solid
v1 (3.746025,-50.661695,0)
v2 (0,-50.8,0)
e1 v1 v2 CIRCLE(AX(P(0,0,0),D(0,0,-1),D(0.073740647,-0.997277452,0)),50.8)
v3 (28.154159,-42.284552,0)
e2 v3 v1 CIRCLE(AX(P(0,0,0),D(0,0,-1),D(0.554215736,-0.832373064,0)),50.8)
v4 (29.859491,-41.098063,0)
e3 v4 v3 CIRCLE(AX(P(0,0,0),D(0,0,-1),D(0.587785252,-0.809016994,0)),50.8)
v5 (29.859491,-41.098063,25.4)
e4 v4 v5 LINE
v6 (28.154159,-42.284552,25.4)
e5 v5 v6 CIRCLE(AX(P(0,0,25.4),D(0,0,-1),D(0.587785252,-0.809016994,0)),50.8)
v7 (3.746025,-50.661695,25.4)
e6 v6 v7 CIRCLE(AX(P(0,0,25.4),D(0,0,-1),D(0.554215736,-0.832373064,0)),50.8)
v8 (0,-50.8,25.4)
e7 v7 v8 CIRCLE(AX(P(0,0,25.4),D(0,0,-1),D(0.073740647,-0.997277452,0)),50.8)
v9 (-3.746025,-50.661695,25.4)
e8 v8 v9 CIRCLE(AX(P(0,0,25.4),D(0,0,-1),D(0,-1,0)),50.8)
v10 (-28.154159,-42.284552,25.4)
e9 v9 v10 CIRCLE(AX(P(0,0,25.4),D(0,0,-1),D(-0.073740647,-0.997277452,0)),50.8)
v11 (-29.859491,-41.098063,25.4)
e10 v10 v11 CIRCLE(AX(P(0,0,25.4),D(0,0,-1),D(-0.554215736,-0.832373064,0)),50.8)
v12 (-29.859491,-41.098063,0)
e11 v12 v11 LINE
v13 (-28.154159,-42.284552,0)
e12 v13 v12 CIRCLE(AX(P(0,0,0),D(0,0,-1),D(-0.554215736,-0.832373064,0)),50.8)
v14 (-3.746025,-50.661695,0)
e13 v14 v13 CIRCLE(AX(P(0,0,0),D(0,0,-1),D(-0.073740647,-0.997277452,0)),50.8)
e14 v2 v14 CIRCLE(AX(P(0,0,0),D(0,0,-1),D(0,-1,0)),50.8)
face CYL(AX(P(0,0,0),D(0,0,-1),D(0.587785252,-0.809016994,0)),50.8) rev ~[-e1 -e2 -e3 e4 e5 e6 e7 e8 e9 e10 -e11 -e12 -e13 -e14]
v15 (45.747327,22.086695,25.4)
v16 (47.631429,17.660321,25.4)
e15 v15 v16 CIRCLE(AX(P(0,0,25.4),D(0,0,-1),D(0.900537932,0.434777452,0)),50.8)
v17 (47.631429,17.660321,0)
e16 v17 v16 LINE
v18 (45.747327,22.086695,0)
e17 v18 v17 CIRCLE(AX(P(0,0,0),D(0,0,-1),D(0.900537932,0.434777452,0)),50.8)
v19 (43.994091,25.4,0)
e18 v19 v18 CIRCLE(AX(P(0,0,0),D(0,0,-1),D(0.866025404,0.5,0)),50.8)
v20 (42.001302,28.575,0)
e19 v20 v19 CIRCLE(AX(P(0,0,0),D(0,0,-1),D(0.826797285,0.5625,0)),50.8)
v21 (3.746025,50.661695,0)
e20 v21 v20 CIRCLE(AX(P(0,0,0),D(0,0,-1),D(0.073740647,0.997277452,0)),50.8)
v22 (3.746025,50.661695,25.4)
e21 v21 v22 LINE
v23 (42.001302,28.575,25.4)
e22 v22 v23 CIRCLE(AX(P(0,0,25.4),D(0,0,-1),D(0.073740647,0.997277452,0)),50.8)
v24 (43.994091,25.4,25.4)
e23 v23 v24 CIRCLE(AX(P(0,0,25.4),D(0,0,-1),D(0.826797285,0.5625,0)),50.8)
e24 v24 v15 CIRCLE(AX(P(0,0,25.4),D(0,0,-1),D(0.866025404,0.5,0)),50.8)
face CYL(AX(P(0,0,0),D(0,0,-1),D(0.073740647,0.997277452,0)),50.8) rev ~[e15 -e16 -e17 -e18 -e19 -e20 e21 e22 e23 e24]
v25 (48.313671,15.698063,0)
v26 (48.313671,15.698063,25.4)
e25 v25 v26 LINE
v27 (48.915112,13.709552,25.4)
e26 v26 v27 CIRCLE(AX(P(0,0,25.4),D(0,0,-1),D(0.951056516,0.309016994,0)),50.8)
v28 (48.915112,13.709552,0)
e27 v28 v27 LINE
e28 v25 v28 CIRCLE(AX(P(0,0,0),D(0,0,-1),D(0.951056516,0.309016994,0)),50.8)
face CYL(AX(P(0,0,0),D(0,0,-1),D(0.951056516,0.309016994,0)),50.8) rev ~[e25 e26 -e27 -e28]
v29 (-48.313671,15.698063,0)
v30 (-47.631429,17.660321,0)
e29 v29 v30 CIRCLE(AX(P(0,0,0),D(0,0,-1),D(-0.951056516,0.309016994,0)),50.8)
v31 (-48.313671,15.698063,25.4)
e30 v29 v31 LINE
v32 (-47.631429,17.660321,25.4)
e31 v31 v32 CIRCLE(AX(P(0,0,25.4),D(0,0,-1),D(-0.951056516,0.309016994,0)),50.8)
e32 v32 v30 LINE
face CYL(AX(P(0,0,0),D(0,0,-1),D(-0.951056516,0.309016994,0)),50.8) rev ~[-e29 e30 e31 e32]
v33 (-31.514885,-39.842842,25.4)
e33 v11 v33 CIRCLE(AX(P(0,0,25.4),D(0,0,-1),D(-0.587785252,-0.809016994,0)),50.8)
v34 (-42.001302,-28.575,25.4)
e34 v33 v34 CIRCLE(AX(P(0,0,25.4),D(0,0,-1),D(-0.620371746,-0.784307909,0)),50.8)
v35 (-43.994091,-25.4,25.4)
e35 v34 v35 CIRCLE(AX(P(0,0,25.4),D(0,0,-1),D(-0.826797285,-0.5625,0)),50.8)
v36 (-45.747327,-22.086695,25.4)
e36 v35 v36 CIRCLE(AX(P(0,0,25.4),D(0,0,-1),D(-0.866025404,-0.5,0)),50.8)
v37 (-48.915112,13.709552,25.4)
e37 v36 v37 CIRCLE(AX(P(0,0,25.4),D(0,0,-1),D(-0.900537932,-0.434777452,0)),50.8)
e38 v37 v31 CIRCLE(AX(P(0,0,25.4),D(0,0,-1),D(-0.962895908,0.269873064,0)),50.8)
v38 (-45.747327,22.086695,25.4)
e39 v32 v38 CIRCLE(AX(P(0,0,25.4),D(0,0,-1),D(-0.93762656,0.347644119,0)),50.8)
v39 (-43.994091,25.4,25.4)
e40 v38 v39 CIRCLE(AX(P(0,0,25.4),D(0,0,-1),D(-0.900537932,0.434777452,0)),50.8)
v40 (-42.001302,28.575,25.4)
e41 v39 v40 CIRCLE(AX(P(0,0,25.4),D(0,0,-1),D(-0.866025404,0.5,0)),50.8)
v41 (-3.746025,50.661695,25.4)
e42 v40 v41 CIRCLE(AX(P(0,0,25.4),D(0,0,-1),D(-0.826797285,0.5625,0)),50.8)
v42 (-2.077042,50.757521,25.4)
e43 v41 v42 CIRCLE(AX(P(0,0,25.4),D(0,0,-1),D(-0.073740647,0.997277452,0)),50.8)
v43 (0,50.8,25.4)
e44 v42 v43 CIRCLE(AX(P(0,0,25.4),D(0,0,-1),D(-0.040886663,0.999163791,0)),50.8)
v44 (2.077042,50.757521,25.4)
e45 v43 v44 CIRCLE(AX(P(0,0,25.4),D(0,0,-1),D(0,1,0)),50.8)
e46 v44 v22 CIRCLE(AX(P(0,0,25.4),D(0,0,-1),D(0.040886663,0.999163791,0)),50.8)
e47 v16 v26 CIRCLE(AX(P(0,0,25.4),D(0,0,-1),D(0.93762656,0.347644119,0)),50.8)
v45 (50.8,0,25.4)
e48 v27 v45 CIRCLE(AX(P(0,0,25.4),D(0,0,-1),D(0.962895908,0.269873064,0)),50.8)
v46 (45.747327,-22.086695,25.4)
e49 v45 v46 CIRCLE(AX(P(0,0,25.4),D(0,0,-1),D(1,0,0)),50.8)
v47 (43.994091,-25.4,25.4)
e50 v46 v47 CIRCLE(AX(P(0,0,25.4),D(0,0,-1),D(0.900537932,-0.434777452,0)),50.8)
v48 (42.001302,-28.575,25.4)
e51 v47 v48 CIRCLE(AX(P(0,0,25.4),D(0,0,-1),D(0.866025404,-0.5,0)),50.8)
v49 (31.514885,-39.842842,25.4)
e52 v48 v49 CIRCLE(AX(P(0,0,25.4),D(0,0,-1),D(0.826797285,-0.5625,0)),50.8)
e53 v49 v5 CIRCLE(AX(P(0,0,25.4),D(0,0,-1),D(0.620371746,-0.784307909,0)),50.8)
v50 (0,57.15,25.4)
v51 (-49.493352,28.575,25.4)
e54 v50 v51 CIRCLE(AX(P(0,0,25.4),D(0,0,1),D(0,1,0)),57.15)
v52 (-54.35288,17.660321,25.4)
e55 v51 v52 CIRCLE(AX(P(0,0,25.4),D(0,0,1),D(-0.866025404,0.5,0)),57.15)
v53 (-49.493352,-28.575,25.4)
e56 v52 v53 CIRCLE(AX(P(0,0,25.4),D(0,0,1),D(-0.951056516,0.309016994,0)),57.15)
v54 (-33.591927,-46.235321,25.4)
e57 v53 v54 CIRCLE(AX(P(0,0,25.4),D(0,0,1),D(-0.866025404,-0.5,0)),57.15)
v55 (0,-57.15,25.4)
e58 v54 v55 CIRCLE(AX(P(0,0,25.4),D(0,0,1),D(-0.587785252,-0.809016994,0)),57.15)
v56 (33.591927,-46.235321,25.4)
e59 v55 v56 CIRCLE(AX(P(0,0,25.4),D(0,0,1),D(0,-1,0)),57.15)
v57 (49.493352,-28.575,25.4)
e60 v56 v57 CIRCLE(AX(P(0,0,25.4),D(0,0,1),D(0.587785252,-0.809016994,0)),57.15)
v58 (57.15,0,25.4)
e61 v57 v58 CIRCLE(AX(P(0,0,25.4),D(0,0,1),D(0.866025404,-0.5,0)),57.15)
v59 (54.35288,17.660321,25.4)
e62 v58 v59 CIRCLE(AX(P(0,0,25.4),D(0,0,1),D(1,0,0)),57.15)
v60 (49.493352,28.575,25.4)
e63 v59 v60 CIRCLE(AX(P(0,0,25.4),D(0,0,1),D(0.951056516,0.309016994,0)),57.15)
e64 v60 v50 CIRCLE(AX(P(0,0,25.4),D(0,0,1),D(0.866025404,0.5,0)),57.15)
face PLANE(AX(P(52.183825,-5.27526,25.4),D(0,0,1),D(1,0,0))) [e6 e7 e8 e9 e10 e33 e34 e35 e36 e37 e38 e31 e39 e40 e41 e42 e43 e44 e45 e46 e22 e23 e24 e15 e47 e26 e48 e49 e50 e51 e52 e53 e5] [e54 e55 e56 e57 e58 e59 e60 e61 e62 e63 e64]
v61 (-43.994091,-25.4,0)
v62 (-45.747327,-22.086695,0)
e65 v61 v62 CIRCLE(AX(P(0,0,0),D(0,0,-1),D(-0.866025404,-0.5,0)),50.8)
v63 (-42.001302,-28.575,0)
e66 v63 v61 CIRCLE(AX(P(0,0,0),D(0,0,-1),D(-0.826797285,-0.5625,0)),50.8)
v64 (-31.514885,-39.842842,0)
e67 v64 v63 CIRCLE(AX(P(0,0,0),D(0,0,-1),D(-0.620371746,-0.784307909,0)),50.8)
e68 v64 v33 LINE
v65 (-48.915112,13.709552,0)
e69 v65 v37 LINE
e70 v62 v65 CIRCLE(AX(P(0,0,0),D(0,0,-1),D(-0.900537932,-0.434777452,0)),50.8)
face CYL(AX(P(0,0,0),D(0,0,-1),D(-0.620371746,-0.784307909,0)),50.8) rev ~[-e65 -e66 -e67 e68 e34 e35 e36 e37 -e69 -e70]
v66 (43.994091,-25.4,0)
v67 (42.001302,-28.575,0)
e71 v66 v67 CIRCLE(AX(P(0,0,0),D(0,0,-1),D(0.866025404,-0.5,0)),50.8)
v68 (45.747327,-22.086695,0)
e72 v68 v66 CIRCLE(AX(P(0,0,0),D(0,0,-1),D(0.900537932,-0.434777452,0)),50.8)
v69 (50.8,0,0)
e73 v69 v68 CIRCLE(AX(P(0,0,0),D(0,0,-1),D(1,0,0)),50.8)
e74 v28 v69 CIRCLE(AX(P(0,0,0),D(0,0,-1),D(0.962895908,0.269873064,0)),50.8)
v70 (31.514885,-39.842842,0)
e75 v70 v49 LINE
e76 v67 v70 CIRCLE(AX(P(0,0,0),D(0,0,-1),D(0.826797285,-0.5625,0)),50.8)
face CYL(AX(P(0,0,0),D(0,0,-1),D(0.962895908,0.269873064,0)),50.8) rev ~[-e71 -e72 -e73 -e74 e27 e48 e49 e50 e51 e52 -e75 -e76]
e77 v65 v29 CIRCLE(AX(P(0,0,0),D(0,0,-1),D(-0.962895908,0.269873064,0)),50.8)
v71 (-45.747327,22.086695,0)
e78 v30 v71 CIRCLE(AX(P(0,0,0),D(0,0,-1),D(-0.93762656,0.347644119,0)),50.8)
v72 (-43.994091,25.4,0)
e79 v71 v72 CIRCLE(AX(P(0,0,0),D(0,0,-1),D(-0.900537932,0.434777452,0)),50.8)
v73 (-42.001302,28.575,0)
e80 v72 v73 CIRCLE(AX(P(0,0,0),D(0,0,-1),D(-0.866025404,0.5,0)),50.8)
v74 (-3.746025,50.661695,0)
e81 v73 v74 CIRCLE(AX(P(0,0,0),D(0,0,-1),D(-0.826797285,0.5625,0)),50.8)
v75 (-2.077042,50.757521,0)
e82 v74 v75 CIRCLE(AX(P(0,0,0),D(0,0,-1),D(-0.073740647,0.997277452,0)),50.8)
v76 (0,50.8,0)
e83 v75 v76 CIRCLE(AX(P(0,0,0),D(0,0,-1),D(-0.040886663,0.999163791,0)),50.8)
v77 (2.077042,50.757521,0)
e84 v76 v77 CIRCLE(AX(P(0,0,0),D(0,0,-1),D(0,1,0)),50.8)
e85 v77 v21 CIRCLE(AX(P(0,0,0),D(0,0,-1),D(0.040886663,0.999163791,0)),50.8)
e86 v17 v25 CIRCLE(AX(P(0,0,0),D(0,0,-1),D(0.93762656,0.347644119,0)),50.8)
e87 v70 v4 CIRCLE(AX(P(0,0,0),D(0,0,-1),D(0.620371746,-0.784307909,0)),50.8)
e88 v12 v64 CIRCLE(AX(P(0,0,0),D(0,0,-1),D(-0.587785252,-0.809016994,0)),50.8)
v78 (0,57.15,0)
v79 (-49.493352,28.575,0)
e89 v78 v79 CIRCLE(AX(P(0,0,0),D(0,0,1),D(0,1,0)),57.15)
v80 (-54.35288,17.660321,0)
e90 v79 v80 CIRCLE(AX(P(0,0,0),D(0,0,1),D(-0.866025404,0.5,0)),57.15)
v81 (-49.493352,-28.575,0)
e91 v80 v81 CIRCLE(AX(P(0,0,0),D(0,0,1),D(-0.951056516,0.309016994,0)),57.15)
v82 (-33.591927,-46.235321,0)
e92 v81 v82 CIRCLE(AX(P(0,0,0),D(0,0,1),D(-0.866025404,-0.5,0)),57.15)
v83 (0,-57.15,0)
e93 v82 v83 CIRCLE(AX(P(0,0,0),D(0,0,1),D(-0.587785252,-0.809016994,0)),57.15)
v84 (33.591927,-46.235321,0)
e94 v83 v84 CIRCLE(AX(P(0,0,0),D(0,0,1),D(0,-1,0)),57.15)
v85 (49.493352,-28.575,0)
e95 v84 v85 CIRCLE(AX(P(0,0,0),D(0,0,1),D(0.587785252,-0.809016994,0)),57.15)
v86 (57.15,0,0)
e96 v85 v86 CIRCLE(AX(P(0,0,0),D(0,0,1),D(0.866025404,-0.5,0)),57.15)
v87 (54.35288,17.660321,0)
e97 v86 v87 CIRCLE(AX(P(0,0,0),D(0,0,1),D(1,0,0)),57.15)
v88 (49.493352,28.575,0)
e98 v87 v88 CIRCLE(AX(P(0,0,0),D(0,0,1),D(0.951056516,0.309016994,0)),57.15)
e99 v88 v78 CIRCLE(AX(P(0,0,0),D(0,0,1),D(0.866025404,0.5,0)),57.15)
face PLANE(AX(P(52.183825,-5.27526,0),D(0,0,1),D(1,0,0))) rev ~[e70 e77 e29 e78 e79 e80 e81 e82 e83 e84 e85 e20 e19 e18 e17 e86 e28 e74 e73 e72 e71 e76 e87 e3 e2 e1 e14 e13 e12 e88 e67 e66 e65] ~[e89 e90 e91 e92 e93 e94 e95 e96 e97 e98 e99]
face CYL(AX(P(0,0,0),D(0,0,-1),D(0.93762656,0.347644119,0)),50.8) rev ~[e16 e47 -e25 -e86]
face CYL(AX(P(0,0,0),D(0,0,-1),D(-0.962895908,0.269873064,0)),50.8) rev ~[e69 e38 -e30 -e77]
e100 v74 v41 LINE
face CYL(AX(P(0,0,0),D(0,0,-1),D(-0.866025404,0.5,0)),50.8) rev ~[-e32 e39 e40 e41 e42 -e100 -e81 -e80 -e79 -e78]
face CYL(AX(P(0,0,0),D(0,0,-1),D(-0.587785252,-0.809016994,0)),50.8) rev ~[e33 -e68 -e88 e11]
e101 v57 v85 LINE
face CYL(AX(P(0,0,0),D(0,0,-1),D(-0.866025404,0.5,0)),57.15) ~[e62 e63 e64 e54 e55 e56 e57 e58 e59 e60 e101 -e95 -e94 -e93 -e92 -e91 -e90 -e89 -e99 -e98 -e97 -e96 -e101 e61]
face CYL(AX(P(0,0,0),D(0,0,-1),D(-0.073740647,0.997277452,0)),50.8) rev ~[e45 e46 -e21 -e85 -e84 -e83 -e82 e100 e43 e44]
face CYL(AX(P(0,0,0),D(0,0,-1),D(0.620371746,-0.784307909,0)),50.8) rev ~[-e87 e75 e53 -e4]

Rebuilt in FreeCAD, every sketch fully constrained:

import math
import FreeCAD as App
import Part
import Sketcher
from FreeCAD import Vector
Q = App.Units.Quantity

doc = App.newDocument("Part")
params = doc.addObject("Spreadsheet::Sheet", "Params")
for row, (alias, value) in enumerate([
    ("sketch1_radius", "2 in"),
    ("sketch1_radius2", "2.25 in"),
    ("pad1_length", "0.1 in"),
    ("sketch2_radius", "2 in"),
    ("sketch2_radius2", "2.25 in"),
    ("pad2_length", "1 in"),
], start=1):
    params.set(f"A{row}", alias)
    params.set(f"B{row}", "=" + value)
    params.setAlias(f"B{row}", alias)

body = doc.addObject("PartDesign::Body", "Body")

# Sketch on XY plane
sketch1 = body.newObject("Sketcher::SketchObject", "Sketch")
sketch1.AttachmentSupport = (doc.getObject("XY_Plane"), [""])
sketch1.MapMode = "FlatFace"
sketch1.addGeometry([
    Part.ArcOfCircle(Part.Circle(Vector(0, 0, 0), Vector(0, 0, 1), 57.15), math.radians(150), math.radians(162)),  # 0
    Part.ArcOfCircle(Part.Circle(Vector(0, 0, 0), Vector(0, 0, 1), 57.15), math.radians(162), math.radians(210)),  # 1
    Part.ArcOfCircle(Part.Circle(Vector(0, 0, 0), Vector(0, 0, 1), 57.15), math.radians(-150), math.radians(-126)),  # 2
    Part.ArcOfCircle(Part.Circle(Vector(0, 0, 0), Vector(0, 0, 1), 57.15), math.radians(-126), math.radians(-90)),  # 3
    Part.ArcOfCircle(Part.Circle(Vector(0, 0, 0), Vector(0, 0, 1), 57.15), math.radians(-90), math.radians(-54)),  # 4
    Part.ArcOfCircle(Part.Circle(Vector(0, 0, 0), Vector(0, 0, 1), 57.15), math.radians(-54), math.radians(-30)),  # 5
    Part.ArcOfCircle(Part.Circle(Vector(0, 0, 0), Vector(0, 0, 1), 57.15), math.radians(-30), math.radians(0)),  # 6
    Part.ArcOfCircle(Part.Circle(Vector(0, 0, 0), Vector(0, 0, 1), 57.15), math.radians(0), math.radians(18)),  # 7
    Part.ArcOfCircle(Part.Circle(Vector(0, 0, 0), Vector(0, 0, 1), 57.15), math.radians(18), math.radians(30)),  # 8
    Part.ArcOfCircle(Part.Circle(Vector(0, 0, 0), Vector(0, 0, 1), 57.15), math.radians(30), math.radians(90)),  # 9
    Part.ArcOfCircle(Part.Circle(Vector(0, 0, 0), Vector(0, 0, 1), 57.15), math.radians(90), math.radians(150)),  # 10
    Part.ArcOfCircle(Part.Circle(Vector(0, 0, 0), Vector(0, 0, 1), 50.8), math.radians(145.771134), math.radians(150)),  # 11
    Part.ArcOfCircle(Part.Circle(Vector(0, 0, 0), Vector(0, 0, 1), 50.8), math.radians(94.228866), math.radians(145.771134)),  # 12
    Part.ArcOfCircle(Part.Circle(Vector(0, 0, 0), Vector(0, 0, 1), 50.8), math.radians(92.343286), math.radians(94.228866)),  # 13
    Part.ArcOfCircle(Part.Circle(Vector(0, 0, 0), Vector(0, 0, 1), 50.8), math.radians(90), math.radians(92.343286)),  # 14
    Part.ArcOfCircle(Part.Circle(Vector(0, 0, 0), Vector(0, 0, 1), 50.8), math.radians(87.656714), math.radians(90)),  # 15
    Part.ArcOfCircle(Part.Circle(Vector(0, 0, 0), Vector(0, 0, 1), 50.8), math.radians(85.771134), math.radians(87.656714)),  # 16
    Part.ArcOfCircle(Part.Circle(Vector(0, 0, 0), Vector(0, 0, 1), 50.8), math.radians(34.228866), math.radians(85.771134)),  # 17
    Part.ArcOfCircle(Part.Circle(Vector(0, 0, 0), Vector(0, 0, 1), 50.8), math.radians(30), math.radians(34.228866)),  # 18
    Part.ArcOfCircle(Part.Circle(Vector(0, 0, 0), Vector(0, 0, 1), 50.8), math.radians(25.771134), math.radians(30)),  # 19
    Part.ArcOfCircle(Part.Circle(Vector(0, 0, 0), Vector(0, 0, 1), 50.8), math.radians(20.343286), math.radians(25.771134)),  # 20
    Part.ArcOfCircle(Part.Circle(Vector(0, 0, 0), Vector(0, 0, 1), 50.8), math.radians(18), math.radians(20.343286)),  # 21
    Part.ArcOfCircle(Part.Circle(Vector(0, 0, 0), Vector(0, 0, 1), 50.8), math.radians(15.656714), math.radians(18)),  # 22
    Part.ArcOfCircle(Part.Circle(Vector(0, 0, 0), Vector(0, 0, 1), 50.8), math.radians(0), math.radians(15.656714)),  # 23
    Part.ArcOfCircle(Part.Circle(Vector(0, 0, 0), Vector(0, 0, 1), 50.8), math.radians(-25.771134), math.radians(0)),  # 24
    Part.ArcOfCircle(Part.Circle(Vector(0, 0, 0), Vector(0, 0, 1), 50.8), math.radians(-30), math.radians(-25.771134)),  # 25
    Part.ArcOfCircle(Part.Circle(Vector(0, 0, 0), Vector(0, 0, 1), 50.8), math.radians(-34.228866), math.radians(-30)),  # 26
    Part.ArcOfCircle(Part.Circle(Vector(0, 0, 0), Vector(0, 0, 1), 50.8), math.radians(-51.656714), math.radians(-34.228866)),  # 27
    Part.ArcOfCircle(Part.Circle(Vector(0, 0, 0), Vector(0, 0, 1), 50.8), math.radians(-54), math.radians(-51.656714)),  # 28
    Part.ArcOfCircle(Part.Circle(Vector(0, 0, 0), Vector(0, 0, 1), 50.8), math.radians(-56.343286), math.radians(-54)),  # 29
    Part.ArcOfCircle(Part.Circle(Vector(0, 0, 0), Vector(0, 0, 1), 50.8), math.radians(-85.771134), math.radians(-56.343286)),  # 30
    Part.ArcOfCircle(Part.Circle(Vector(0, 0, 0), Vector(0, 0, 1), 50.8), math.radians(-90), math.radians(-85.771134)),  # 31
    Part.ArcOfCircle(Part.Circle(Vector(0, 0, 0), Vector(0, 0, 1), 50.8), math.radians(-94.228866), math.radians(-90)),  # 32
    Part.ArcOfCircle(Part.Circle(Vector(0, 0, 0), Vector(0, 0, 1), 50.8), math.radians(-123.656714), math.radians(-94.228866)),  # 33
    Part.ArcOfCircle(Part.Circle(Vector(0, 0, 0), Vector(0, 0, 1), 50.8), math.radians(-126), math.radians(-123.656714)),  # 34
    Part.ArcOfCircle(Part.Circle(Vector(0, 0, 0), Vector(0, 0, 1), 50.8), math.radians(-128.343286), math.radians(-126)),  # 35
    Part.ArcOfCircle(Part.Circle(Vector(0, 0, 0), Vector(0, 0, 1), 50.8), math.radians(-145.771134), math.radians(-128.343286)),  # 36
    Part.ArcOfCircle(Part.Circle(Vector(0, 0, 0), Vector(0, 0, 1), 50.8), math.radians(-150), math.radians(-145.771134)),  # 37
    Part.ArcOfCircle(Part.Circle(Vector(0, 0, 0), Vector(0, 0, 1), 50.8), math.radians(-154.228866), math.radians(-150)),  # 38
    Part.ArcOfCircle(Part.Circle(Vector(0, 0, 0), Vector(0, 0, 1), 50.8), math.radians(164.343286), math.radians(205.771134)),  # 39
    Part.ArcOfCircle(Part.Circle(Vector(0, 0, 0), Vector(0, 0, 1), 50.8), math.radians(162), math.radians(164.343286)),  # 40
    Part.ArcOfCircle(Part.Circle(Vector(0, 0, 0), Vector(0, 0, 1), 50.8), math.radians(159.656714), math.radians(162)),  # 41
    Part.ArcOfCircle(Part.Circle(Vector(0, 0, 0), Vector(0, 0, 1), 50.8), math.radians(154.228866), math.radians(159.656714)),  # 42
    Part.ArcOfCircle(Part.Circle(Vector(0, 0, 0), Vector(0, 0, 1), 50.8), math.radians(150), math.radians(154.228866)),  # 43
], False)
sketch1.addConstraint([
    Sketcher.Constraint("Tangent", 0, 2, 1, 1),
    Sketcher.Constraint("Tangent", 1, 2, 2, 1),
    Sketcher.Constraint("Tangent", 2, 2, 3, 1),
    Sketcher.Constraint("Tangent", 3, 2, 4, 1),
    Sketcher.Constraint("Tangent", 4, 2, 5, 1),
    Sketcher.Constraint("Tangent", 5, 2, 6, 1),
    Sketcher.Constraint("Tangent", 6, 2, 7, 1),
    Sketcher.Constraint("Tangent", 7, 2, 8, 1),
    Sketcher.Constraint("Tangent", 8, 2, 9, 1),
    Sketcher.Constraint("Tangent", 9, 2, 10, 1),
    Sketcher.Constraint("Tangent", 10, 2, 0, 1),
    Sketcher.Constraint("Tangent", 11, 1, 12, 2),
    Sketcher.Constraint("Tangent", 12, 1, 13, 2),
    Sketcher.Constraint("Tangent", 13, 1, 14, 2),
    Sketcher.Constraint("Tangent", 14, 1, 15, 2),
    Sketcher.Constraint("Tangent", 15, 1, 16, 2),
    Sketcher.Constraint("Tangent", 16, 1, 17, 2),
    Sketcher.Constraint("Tangent", 17, 1, 18, 2),
    Sketcher.Constraint("Tangent", 18, 1, 19, 2),
    Sketcher.Constraint("Tangent", 19, 1, 20, 2),
    Sketcher.Constraint("Tangent", 20, 1, 21, 2),
    Sketcher.Constraint("Tangent", 21, 1, 22, 2),
    Sketcher.Constraint("Tangent", 22, 1, 23, 2),
    Sketcher.Constraint("Tangent", 23, 1, 24, 2),
    Sketcher.Constraint("Tangent", 24, 1, 25, 2),
    Sketcher.Constraint("Tangent", 25, 1, 26, 2),
    Sketcher.Constraint("Tangent", 26, 1, 27, 2),
    Sketcher.Constraint("Tangent", 27, 1, 28, 2),
    Sketcher.Constraint("Tangent", 28, 1, 29, 2),
    Sketcher.Constraint("Tangent", 29, 1, 30, 2),
    Sketcher.Constraint("Tangent", 30, 1, 31, 2),
    Sketcher.Constraint("Tangent", 31, 1, 32, 2),
    Sketcher.Constraint("Tangent", 32, 1, 33, 2),
    Sketcher.Constraint("Tangent", 33, 1, 34, 2),
    Sketcher.Constraint("Tangent", 34, 1, 35, 2),
    Sketcher.Constraint("Tangent", 35, 1, 36, 2),
    Sketcher.Constraint("Tangent", 36, 1, 37, 2),
    Sketcher.Constraint("Tangent", 37, 1, 38, 2),
    Sketcher.Constraint("Tangent", 38, 1, 39, 2),
    Sketcher.Constraint("Tangent", 39, 1, 40, 2),
    Sketcher.Constraint("Tangent", 40, 1, 41, 2),
    Sketcher.Constraint("Tangent", 41, 1, 42, 2),
    Sketcher.Constraint("Tangent", 42, 1, 43, 2),
    Sketcher.Constraint("Tangent", 43, 1, 11, 2),
    Sketcher.Constraint("Coincident", 0, 3, -1, 1),
    Sketcher.Constraint("Coincident", 2, 3, -1, 1),
    Sketcher.Constraint("Coincident", 4, 3, -1, 1),
    Sketcher.Constraint("Coincident", 6, 3, -1, 1),
    Sketcher.Constraint("Coincident", 8, 3, -1, 1),
    Sketcher.Constraint("Coincident", 11, 3, -1, 1),
    Sketcher.Constraint("Coincident", 13, 3, -1, 1),
    Sketcher.Constraint("Coincident", 15, 3, -1, 1),
    Sketcher.Constraint("Coincident", 17, 3, -1, 1),
    Sketcher.Constraint("Coincident", 19, 3, -1, 1),
    Sketcher.Constraint("Coincident", 21, 3, -1, 1),
    Sketcher.Constraint("Coincident", 23, 3, -1, 1),
    Sketcher.Constraint("Coincident", 25, 3, -1, 1),
    Sketcher.Constraint("Coincident", 27, 3, -1, 1),
    Sketcher.Constraint("Coincident", 29, 3, -1, 1),
    Sketcher.Constraint("Coincident", 31, 3, -1, 1),
    Sketcher.Constraint("Coincident", 33, 3, -1, 1),
    Sketcher.Constraint("Coincident", 35, 3, -1, 1),
    Sketcher.Constraint("Coincident", 37, 3, -1, 1),
    Sketcher.Constraint("Coincident", 39, 3, -1, 1),
    Sketcher.Constraint("Coincident", 41, 3, -1, 1),
    Sketcher.Constraint("PointOnObject", 3, 2, -2),
    Sketcher.Constraint("PointOnObject", 6, 2, -1),
    Sketcher.Constraint("PointOnObject", 9, 2, -2),
    Sketcher.Constraint("PointOnObject", 14, 1, -2),
    Sketcher.Constraint("PointOnObject", 23, 1, -1),
    Sketcher.Constraint("PointOnObject", 31, 1, -2),
    Sketcher.Constraint("Horizontal", 2, 2, 4, 2),
    Sketcher.Constraint("Horizontal", 1, 2, 5, 2),
    Sketcher.Constraint("Horizontal", 0, 2, 7, 2),
    Sketcher.Constraint("Horizontal", 8, 2, 10, 2),
    Sketcher.Constraint("Horizontal", 10, 2, 11, 1),
    Sketcher.Constraint("Horizontal", 13, 1, 15, 1),
    Sketcher.Constraint("Horizontal", 12, 1, 16, 1),
    Sketcher.Constraint("Horizontal", 11, 1, 17, 1),
    Sketcher.Constraint("Horizontal", 7, 2, 20, 1),
    Sketcher.Constraint("Horizontal", 5, 2, 26, 1),
    Sketcher.Constraint("Horizontal", 30, 1, 32, 1),
    Sketcher.Constraint("Horizontal", 29, 1, 33, 1),
    Sketcher.Constraint("Horizontal", 28, 1, 34, 1),
    Sketcher.Constraint("Horizontal", 27, 1, 35, 1),
    Sketcher.Constraint("Horizontal", 26, 1, 36, 1),
    Sketcher.Constraint("Horizontal", 25, 1, 37, 1),
    Sketcher.Constraint("Horizontal", 24, 1, 38, 1),
    Sketcher.Constraint("Horizontal", 22, 1, 39, 1),
    Sketcher.Constraint("Horizontal", 21, 1, 40, 1),
    Sketcher.Constraint("Horizontal", 20, 1, 41, 1),
    Sketcher.Constraint("Horizontal", 19, 1, 42, 1),
    Sketcher.Constraint("Horizontal", 18, 1, 43, 1),
    Sketcher.Constraint("Vertical", 5, 2, 8, 2),
    Sketcher.Constraint("Vertical", 19, 1, 24, 1),
    Sketcher.Constraint("Vertical", 18, 1, 25, 1),
    Sketcher.Constraint("Vertical", 16, 1, 30, 1),
    Sketcher.Constraint("Radius", 11, Q("2 in")),
    Sketcher.Constraint("Radius", 0, Q("2.25 in")),
    Sketcher.Constraint("DistanceY", -1, 1, 18, 1, Q("1 in")),
    Sketcher.Constraint("DistanceY", 1, 2, -1, 1, Q("1.125 in")),
    Sketcher.Constraint("DistanceX", 0, 2, -1, 1, 54.35288),
    Sketcher.Constraint("DistanceY", 2, 2, -1, 1, 46.235321),
    Sketcher.Constraint("DistanceY", -1, 1, 13, 1, 50.757521),
    Sketcher.Constraint("DistanceX", -1, 1, 21, 1, 48.313671),
    Sketcher.Constraint("DistanceY", -1, 1, 22, 1, 13.709552),
    Sketcher.Constraint("DistanceY", 27, 1, -1, 1, 39.842842),
    Sketcher.Constraint("DistanceX", -1, 1, 28, 1, 29.859491),
    Sketcher.Constraint("DistanceX", -1, 1, 29, 1, 28.154159),
    Sketcher.Constraint("DistanceX", 12, 1, -1, 1, 3.746025),
    Sketcher.Constraint("DistanceX", -1, 1, 19, 1, 45.747327),
])
sketch1.setExpression("Constraints[97]", "Params.sketch1_radius")
sketch1.setExpression("Constraints[98]", "Params.sketch1_radius2")
pad1 = body.newObject("PartDesign::Pad", "Pad")
pad1.Profile = sketch1
pad1.setExpression("Length", "Params.pad1_length")

# Sketch on XY plane
sketch2 = body.newObject("Sketcher::SketchObject", "Sketch001")
sketch2.AttachmentSupport = (doc.getObject("XY_Plane"), [""])
sketch2.MapMode = "FlatFace"
sketch2.addGeometry([
    Part.ArcOfCircle(Part.Circle(Vector(0, 0, 0), Vector(0, 0, 1), 57.15), math.radians(162), math.radians(210)),  # 0
    Part.ArcOfCircle(Part.Circle(Vector(0, 0, 0), Vector(0, 0, 1), 57.15), math.radians(-150), math.radians(-126)),  # 1
    Part.ArcOfCircle(Part.Circle(Vector(0, 0, 0), Vector(0, 0, 1), 57.15), math.radians(-126), math.radians(-90)),  # 2
    Part.ArcOfCircle(Part.Circle(Vector(0, 0, 0), Vector(0, 0, 1), 57.15), math.radians(-90), math.radians(-54)),  # 3
    Part.ArcOfCircle(Part.Circle(Vector(0, 0, 0), Vector(0, 0, 1), 57.15), math.radians(-54), math.radians(-30)),  # 4
    Part.ArcOfCircle(Part.Circle(Vector(0, 0, 0), Vector(0, 0, 1), 57.15), math.radians(-30), math.radians(0)),  # 5
    Part.ArcOfCircle(Part.Circle(Vector(0, 0, 0), Vector(0, 0, 1), 57.15), math.radians(0), math.radians(18)),  # 6
    Part.ArcOfCircle(Part.Circle(Vector(0, 0, 0), Vector(0, 0, 1), 57.15), math.radians(18), math.radians(30)),  # 7
    Part.ArcOfCircle(Part.Circle(Vector(0, 0, 0), Vector(0, 0, 1), 57.15), math.radians(30), math.radians(90)),  # 8
    Part.ArcOfCircle(Part.Circle(Vector(0, 0, 0), Vector(0, 0, 1), 57.15), math.radians(90), math.radians(150)),  # 9
    Part.ArcOfCircle(Part.Circle(Vector(0, 0, 0), Vector(0, 0, 1), 57.15), math.radians(150), math.radians(162)),  # 10
    Part.ArcOfCircle(Part.Circle(Vector(0, 0, 0), Vector(0, 0, 1), 50.8), math.radians(-145.771134), math.radians(-128.343286)),  # 11
    Part.ArcOfCircle(Part.Circle(Vector(0, 0, 0), Vector(0, 0, 1), 50.8), math.radians(-150), math.radians(-145.771134)),  # 12
    Part.ArcOfCircle(Part.Circle(Vector(0, 0, 0), Vector(0, 0, 1), 50.8), math.radians(-154.228866), math.radians(-150)),  # 13
    Part.ArcOfCircle(Part.Circle(Vector(0, 0, 0), Vector(0, 0, 1), 50.8), math.radians(164.343286), math.radians(205.771134)),  # 14
    Part.ArcOfCircle(Part.Circle(Vector(0, 0, 0), Vector(0, 0, 1), 50.8), math.radians(162), math.radians(164.343286)),  # 15
    Part.ArcOfCircle(Part.Circle(Vector(0, 0, 0), Vector(0, 0, 1), 50.8), math.radians(159.656714), math.radians(162)),  # 16
    Part.ArcOfCircle(Part.Circle(Vector(0, 0, 0), Vector(0, 0, 1), 50.8), math.radians(154.228866), math.radians(159.656714)),  # 17
    Part.ArcOfCircle(Part.Circle(Vector(0, 0, 0), Vector(0, 0, 1), 50.8), math.radians(150), math.radians(154.228866)),  # 18
    Part.ArcOfCircle(Part.Circle(Vector(0, 0, 0), Vector(0, 0, 1), 50.8), math.radians(145.771134), math.radians(150)),  # 19
    Part.ArcOfCircle(Part.Circle(Vector(0, 0, 0), Vector(0, 0, 1), 50.8), math.radians(94.228866), math.radians(145.771134)),  # 20
    Part.ArcOfCircle(Part.Circle(Vector(0, 0, 0), Vector(0, 0, 1), 50.8), math.radians(92.343286), math.radians(94.228866)),  # 21
    Part.ArcOfCircle(Part.Circle(Vector(0, 0, 0), Vector(0, 0, 1), 50.8), math.radians(90), math.radians(92.343286)),  # 22
    Part.ArcOfCircle(Part.Circle(Vector(0, 0, 0), Vector(0, 0, 1), 50.8), math.radians(87.656714), math.radians(90)),  # 23
    Part.ArcOfCircle(Part.Circle(Vector(0, 0, 0), Vector(0, 0, 1), 50.8), math.radians(85.771134), math.radians(87.656714)),  # 24
    Part.ArcOfCircle(Part.Circle(Vector(0, 0, 0), Vector(0, 0, 1), 50.8), math.radians(34.228866), math.radians(85.771134)),  # 25
    Part.ArcOfCircle(Part.Circle(Vector(0, 0, 0), Vector(0, 0, 1), 50.8), math.radians(30), math.radians(34.228866)),  # 26
    Part.ArcOfCircle(Part.Circle(Vector(0, 0, 0), Vector(0, 0, 1), 50.8), math.radians(25.771134), math.radians(30)),  # 27
    Part.ArcOfCircle(Part.Circle(Vector(0, 0, 0), Vector(0, 0, 1), 50.8), math.radians(20.343286), math.radians(25.771134)),  # 28
    Part.ArcOfCircle(Part.Circle(Vector(0, 0, 0), Vector(0, 0, 1), 50.8), math.radians(18), math.radians(20.343286)),  # 29
    Part.ArcOfCircle(Part.Circle(Vector(0, 0, 0), Vector(0, 0, 1), 50.8), math.radians(15.656714), math.radians(18)),  # 30
    Part.ArcOfCircle(Part.Circle(Vector(0, 0, 0), Vector(0, 0, 1), 50.8), math.radians(0), math.radians(15.656714)),  # 31
    Part.ArcOfCircle(Part.Circle(Vector(0, 0, 0), Vector(0, 0, 1), 50.8), math.radians(-25.771134), math.radians(0)),  # 32
    Part.ArcOfCircle(Part.Circle(Vector(0, 0, 0), Vector(0, 0, 1), 50.8), math.radians(-30), math.radians(-25.771134)),  # 33
    Part.ArcOfCircle(Part.Circle(Vector(0, 0, 0), Vector(0, 0, 1), 50.8), math.radians(-34.228866), math.radians(-30)),  # 34
    Part.ArcOfCircle(Part.Circle(Vector(0, 0, 0), Vector(0, 0, 1), 50.8), math.radians(-51.656714), math.radians(-34.228866)),  # 35
    Part.ArcOfCircle(Part.Circle(Vector(0, 0, 0), Vector(0, 0, 1), 50.8), math.radians(-54), math.radians(-51.656714)),  # 36
    Part.ArcOfCircle(Part.Circle(Vector(0, 0, 0), Vector(0, 0, 1), 50.8), math.radians(-56.343286), math.radians(-54)),  # 37
    Part.ArcOfCircle(Part.Circle(Vector(0, 0, 0), Vector(0, 0, 1), 50.8), math.radians(-85.771134), math.radians(-56.343286)),  # 38
    Part.ArcOfCircle(Part.Circle(Vector(0, 0, 0), Vector(0, 0, 1), 50.8), math.radians(-90), math.radians(-85.771134)),  # 39
    Part.ArcOfCircle(Part.Circle(Vector(0, 0, 0), Vector(0, 0, 1), 50.8), math.radians(-94.228866), math.radians(-90)),  # 40
    Part.ArcOfCircle(Part.Circle(Vector(0, 0, 0), Vector(0, 0, 1), 50.8), math.radians(-123.656714), math.radians(-94.228866)),  # 41
    Part.ArcOfCircle(Part.Circle(Vector(0, 0, 0), Vector(0, 0, 1), 50.8), math.radians(-126), math.radians(-123.656714)),  # 42
    Part.ArcOfCircle(Part.Circle(Vector(0, 0, 0), Vector(0, 0, 1), 50.8), math.radians(-128.343286), math.radians(-126)),  # 43
], False)
sketch2.addConstraint([
    Sketcher.Constraint("Tangent", 0, 2, 1, 1),
    Sketcher.Constraint("Tangent", 1, 2, 2, 1),
    Sketcher.Constraint("Tangent", 2, 2, 3, 1),
    Sketcher.Constraint("Tangent", 3, 2, 4, 1),
    Sketcher.Constraint("Tangent", 4, 2, 5, 1),
    Sketcher.Constraint("Tangent", 5, 2, 6, 1),
    Sketcher.Constraint("Tangent", 6, 2, 7, 1),
    Sketcher.Constraint("Tangent", 7, 2, 8, 1),
    Sketcher.Constraint("Tangent", 8, 2, 9, 1),
    Sketcher.Constraint("Tangent", 9, 2, 10, 1),
    Sketcher.Constraint("Tangent", 10, 2, 0, 1),
    Sketcher.Constraint("Tangent", 11, 1, 12, 2),
    Sketcher.Constraint("Tangent", 12, 1, 13, 2),
    Sketcher.Constraint("Tangent", 13, 1, 14, 2),
    Sketcher.Constraint("Tangent", 14, 1, 15, 2),
    Sketcher.Constraint("Tangent", 15, 1, 16, 2),
    Sketcher.Constraint("Tangent", 16, 1, 17, 2),
    Sketcher.Constraint("Tangent", 17, 1, 18, 2),
    Sketcher.Constraint("Tangent", 18, 1, 19, 2),
    Sketcher.Constraint("Tangent", 19, 1, 20, 2),
    Sketcher.Constraint("Tangent", 20, 1, 21, 2),
    Sketcher.Constraint("Tangent", 21, 1, 22, 2),
    Sketcher.Constraint("Tangent", 22, 1, 23, 2),
    Sketcher.Constraint("Tangent", 23, 1, 24, 2),
    Sketcher.Constraint("Tangent", 24, 1, 25, 2),
    Sketcher.Constraint("Tangent", 25, 1, 26, 2),
    Sketcher.Constraint("Tangent", 26, 1, 27, 2),
    Sketcher.Constraint("Tangent", 27, 1, 28, 2),
    Sketcher.Constraint("Tangent", 28, 1, 29, 2),
    Sketcher.Constraint("Tangent", 29, 1, 30, 2),
    Sketcher.Constraint("Tangent", 30, 1, 31, 2),
    Sketcher.Constraint("Tangent", 31, 1, 32, 2),
    Sketcher.Constraint("Tangent", 32, 1, 33, 2),
    Sketcher.Constraint("Tangent", 33, 1, 34, 2),
    Sketcher.Constraint("Tangent", 34, 1, 35, 2),
    Sketcher.Constraint("Tangent", 35, 1, 36, 2),
    Sketcher.Constraint("Tangent", 36, 1, 37, 2),
    Sketcher.Constraint("Tangent", 37, 1, 38, 2),
    Sketcher.Constraint("Tangent", 38, 1, 39, 2),
    Sketcher.Constraint("Tangent", 39, 1, 40, 2),
    Sketcher.Constraint("Tangent", 40, 1, 41, 2),
    Sketcher.Constraint("Tangent", 41, 1, 42, 2),
    Sketcher.Constraint("Tangent", 42, 1, 43, 2),
    Sketcher.Constraint("Tangent", 43, 1, 11, 2),
    Sketcher.Constraint("Coincident", 0, 3, -1, 1),
    Sketcher.Constraint("Coincident", 2, 3, -1, 1),
    Sketcher.Constraint("Coincident", 4, 3, -1, 1),
    Sketcher.Constraint("Coincident", 6, 3, -1, 1),
    Sketcher.Constraint("Coincident", 8, 3, -1, 1),
    Sketcher.Constraint("Coincident", 11, 3, -1, 1),
    Sketcher.Constraint("Coincident", 13, 3, -1, 1),
    Sketcher.Constraint("Coincident", 15, 3, -1, 1),
    Sketcher.Constraint("Coincident", 17, 3, -1, 1),
    Sketcher.Constraint("Coincident", 19, 3, -1, 1),
    Sketcher.Constraint("Coincident", 21, 3, -1, 1),
    Sketcher.Constraint("Coincident", 23, 3, -1, 1),
    Sketcher.Constraint("Coincident", 25, 3, -1, 1),
    Sketcher.Constraint("Coincident", 27, 3, -1, 1),
    Sketcher.Constraint("Coincident", 29, 3, -1, 1),
    Sketcher.Constraint("Coincident", 31, 3, -1, 1),
    Sketcher.Constraint("Coincident", 33, 3, -1, 1),
    Sketcher.Constraint("Coincident", 35, 3, -1, 1),
    Sketcher.Constraint("Coincident", 37, 3, -1, 1),
    Sketcher.Constraint("Coincident", 39, 3, -1, 1),
    Sketcher.Constraint("Coincident", 41, 3, -1, 1),
    Sketcher.Constraint("PointOnObject", 2, 2, -2),
    Sketcher.Constraint("PointOnObject", 5, 2, -1),
    Sketcher.Constraint("PointOnObject", 8, 2, -2),
    Sketcher.Constraint("PointOnObject", 22, 1, -2),
    Sketcher.Constraint("PointOnObject", 31, 1, -1),
    Sketcher.Constraint("PointOnObject", 39, 1, -2),
    Sketcher.Constraint("Horizontal", 1, 2, 3, 2),
    Sketcher.Constraint("Horizontal", 0, 2, 4, 2),
    Sketcher.Constraint("Horizontal", 7, 2, 9, 2),
    Sketcher.Constraint("Horizontal", 6, 2, 10, 2),
    Sketcher.Constraint("Horizontal", 4, 2, 11, 1),
    Sketcher.Constraint("Horizontal", 10, 2, 16, 1),
    Sketcher.Constraint("Horizontal", 9, 2, 19, 1),
    Sketcher.Constraint("Horizontal", 21, 1, 23, 1),
    Sketcher.Constraint("Horizontal", 20, 1, 24, 1),
    Sketcher.Constraint("Horizontal", 19, 1, 25, 1),
    Sketcher.Constraint("Horizontal", 18, 1, 26, 1),
    Sketcher.Constraint("Horizontal", 17, 1, 27, 1),
    Sketcher.Constraint("Horizontal", 16, 1, 28, 1),
    Sketcher.Constraint("Horizontal", 15, 1, 29, 1),
    Sketcher.Constraint("Horizontal", 14, 1, 30, 1),
    Sketcher.Constraint("Horizontal", 13, 1, 32, 1),
    Sketcher.Constraint("Horizontal", 12, 1, 33, 1),
    Sketcher.Constraint("Horizontal", 11, 1, 34, 1),
    Sketcher.Constraint("Horizontal", 38, 1, 40, 1),
    Sketcher.Constraint("Horizontal", 37, 1, 41, 1),
    Sketcher.Constraint("Horizontal", 36, 1, 42, 1),
    Sketcher.Constraint("Horizontal", 35, 1, 43, 1),
    Sketcher.Constraint("Vertical", 4, 2, 7, 2),
    Sketcher.Constraint("Vertical", 13, 1, 17, 1),
    Sketcher.Constraint("Vertical", 12, 1, 18, 1),
    Sketcher.Constraint("Vertical", 24, 1, 38, 1),
    Sketcher.Constraint("Radius", 11, Q("2 in")),
    Sketcher.Constraint("Radius", 0, Q("2.25 in")),
    Sketcher.Constraint("DistanceY", 12, 1, -1, 1, Q("1 in")),
    Sketcher.Constraint("DistanceY", 0, 2, -1, 1, Q("1.125 in")),
    Sketcher.Constraint("DistanceY", 1, 2, -1, 1, 46.235321),
    Sketcher.Constraint("DistanceX", -1, 1, 6, 2, 54.35288),
    Sketcher.Constraint("DistanceY", -1, 1, 14, 1, 13.709552),
    Sketcher.Constraint("DistanceX", 15, 1, -1, 1, 48.313671),
    Sketcher.Constraint("DistanceY", -1, 1, 21, 1, 50.757521),
    Sketcher.Constraint("DistanceY", 35, 1, -1, 1, 39.842842),
    Sketcher.Constraint("DistanceX", -1, 1, 36, 1, 29.859491),
    Sketcher.Constraint("DistanceX", -1, 1, 37, 1, 28.154159),
    Sketcher.Constraint("DistanceX", 13, 1, -1, 1, 45.747327),
    Sketcher.Constraint("DistanceX", 20, 1, -1, 1, 3.746025),
])
sketch2.setExpression("Constraints[97]", "Params.sketch2_radius")
sketch2.setExpression("Constraints[98]", "Params.sketch2_radius2")
pad2 = body.newObject("PartDesign::Pad", "Pad001")
pad2.Profile = sketch2
pad2.setExpression("Length", "Params.pad2_length")

doc.recompute()
